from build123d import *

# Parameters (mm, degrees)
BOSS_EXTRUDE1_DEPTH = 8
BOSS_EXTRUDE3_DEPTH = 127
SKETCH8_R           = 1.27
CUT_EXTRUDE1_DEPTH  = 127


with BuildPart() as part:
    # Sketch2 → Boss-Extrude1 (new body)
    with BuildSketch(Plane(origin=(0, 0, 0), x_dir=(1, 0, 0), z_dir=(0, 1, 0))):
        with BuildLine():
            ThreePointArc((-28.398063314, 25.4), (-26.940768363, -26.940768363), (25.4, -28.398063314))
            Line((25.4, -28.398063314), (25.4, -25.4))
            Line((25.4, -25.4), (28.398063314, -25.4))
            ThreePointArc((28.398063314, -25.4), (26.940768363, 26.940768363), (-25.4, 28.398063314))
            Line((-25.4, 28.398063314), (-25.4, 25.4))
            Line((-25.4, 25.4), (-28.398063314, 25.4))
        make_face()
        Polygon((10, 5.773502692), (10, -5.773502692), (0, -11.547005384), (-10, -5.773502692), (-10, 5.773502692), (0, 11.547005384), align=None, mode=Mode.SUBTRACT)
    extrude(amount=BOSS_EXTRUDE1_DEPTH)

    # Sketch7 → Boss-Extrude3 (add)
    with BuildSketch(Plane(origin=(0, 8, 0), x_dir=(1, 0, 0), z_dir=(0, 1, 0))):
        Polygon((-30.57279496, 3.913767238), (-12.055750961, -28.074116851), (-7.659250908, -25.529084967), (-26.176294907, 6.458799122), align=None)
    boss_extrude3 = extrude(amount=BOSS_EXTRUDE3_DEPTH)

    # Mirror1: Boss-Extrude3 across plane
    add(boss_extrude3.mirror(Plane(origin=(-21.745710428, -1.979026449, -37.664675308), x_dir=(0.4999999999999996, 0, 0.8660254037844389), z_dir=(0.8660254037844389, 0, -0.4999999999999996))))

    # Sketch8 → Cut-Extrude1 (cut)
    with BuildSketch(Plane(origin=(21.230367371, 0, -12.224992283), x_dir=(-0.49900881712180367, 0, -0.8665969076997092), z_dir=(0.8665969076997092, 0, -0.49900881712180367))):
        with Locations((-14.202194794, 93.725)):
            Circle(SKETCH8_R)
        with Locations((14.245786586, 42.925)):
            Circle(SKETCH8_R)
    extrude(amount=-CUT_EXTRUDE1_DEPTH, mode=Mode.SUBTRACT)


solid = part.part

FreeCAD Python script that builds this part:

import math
import FreeCAD as App
import Part
import Sketcher
Q = App.Units.Quantity

doc = App.newDocument("Part")
body = doc.addObject("PartDesign::Body", "Body")

sketch1 = body.newObject("Sketcher::SketchObject", "Sketch")
sketch1.AttachmentSupport = (doc.getObject("XZ_Plane"), [""])
sketch1.MapMode = "FlatFace"
sketch1.addGeometry(Part.ArcOfCircle(Part.Circle(App.Vector(0, 0, 0), App.Vector(0, 0, 1), 38.1), math.radians(48), math.radians(222)), False)
sketch1.addGeometry(Part.LineSegment(App.Vector(25.4, 28.4, 0), App.Vector(25.4, 25.4, 0)), False)
sketch1.addGeometry(Part.LineSegment(App.Vector(25.4, 25.4, 0), App.Vector(28.4, 25.4, 0)), False)
sketch1.addGeometry(Part.ArcOfCircle(Part.Circle(App.Vector(0, 0, 0), App.Vector(0, 0, 1), 38.1), math.radians(-132), math.radians(42)), False)
sketch1.addGeometry(Part.LineSegment(App.Vector(-25.4, -28.4, 0), App.Vector(-25.4, -25.4, 0)), False)
sketch1.addGeometry(Part.LineSegment(App.Vector(-25.4, -25.4, 0), App.Vector(-28.4, -25.4, 0)), False)
sketch1.addGeometry(Part.LineSegment(App.Vector(0, -11.5, 0), App.Vector(10, -5.8, 0)), False)
sketch1.addGeometry(Part.LineSegment(App.Vector(10, -5.8, 0), App.Vector(10, 5.8, 0)), False)
sketch1.addGeometry(Part.LineSegment(App.Vector(10, 5.8, 0), App.Vector(0, 11.5, 0)), False)
sketch1.addGeometry(Part.LineSegment(App.Vector(0, 11.5, 0), App.Vector(-10, 5.8, 0)), False)
sketch1.addGeometry(Part.LineSegment(App.Vector(-10, 5.8, 0), App.Vector(-10, -5.8, 0)), False)
sketch1.addGeometry(Part.LineSegment(App.Vector(-10, -5.8, 0), App.Vector(0, -11.5, 0)), False)
sketch1.addConstraint(Sketcher.Constraint("Coincident", 0, 1, 1, 1))
sketch1.addConstraint(Sketcher.Constraint("Coincident", 1, 2, 2, 1))
sketch1.addConstraint(Sketcher.Constraint("Coincident", 2, 2, 3, 2))
sketch1.addConstraint(Sketcher.Constraint("Coincident", 3, 1, 4, 1))
sketch1.addConstraint(Sketcher.Constraint("Coincident", 4, 2, 5, 1))
sketch1.addConstraint(Sketcher.Constraint("Coincident", 5, 2, 0, 2))
sketch1.addConstraint(Sketcher.Constraint("Coincident", 6, 2, 7, 1))
sketch1.addConstraint(Sketcher.Constraint("Coincident", 7, 2, 8, 1))
sketch1.addConstraint(Sketcher.Constraint("Coincident", 8, 2, 9, 1))
sketch1.addConstraint(Sketcher.Constraint("Coincident", 9, 2, 10, 1))
sketch1.addConstraint(Sketcher.Constraint("Coincident", 10, 2, 11, 1))
sketch1.addConstraint(Sketcher.Constraint("Coincident", 11, 2, 6, 1))
sketch1.addConstraint(Sketcher.Constraint("Vertical", 1))
sketch1.addConstraint(Sketcher.Constraint("Horizontal", 2))
sketch1.addConstraint(Sketcher.Constraint("Vertical", 4))
sketch1.addConstraint(Sketcher.Constraint("Horizontal", 5))
sketch1.addConstraint(Sketcher.Constraint("Vertical", 7))
sketch1.addConstraint(Sketcher.Constraint("Vertical", 10))
sketch1.addConstraint(Sketcher.Constraint("Coincident", 0, 3, -1, 1))
sketch1.addConstraint(Sketcher.Constraint("Coincident", 3, 3, -1, 1))
sketch1.addConstraint(Sketcher.Constraint("Equal", 0, 3))
sketch1.addConstraint(Sketcher.Constraint("Symmetric", 1, 2, 4, 2, -1, 1))
sketch1.addConstraint(Sketcher.Constraint("Symmetric", 6, 2, 9, 2, -1, 1))
sketch1.addConstraint(Sketcher.Constraint("Symmetric", 8, 2, 11, 2, -1, 1))
sketch1.addConstraint(Sketcher.Constraint("PointOnObject", 8, 2, -2))
sketch1.addConstraint(Sketcher.Constraint("Parallel", 8, 11))
sketch1.addConstraint(Sketcher.Constraint("Horizontal", 7, 2, 9, 2))
sketch1.addConstraint(Sketcher.Constraint("Equal", 5, 1))
sketch1.addConstraint(Sketcher.Constraint("Radius", 0, Q("1.5 in")))
sketch1.addConstraint(Sketcher.Constraint("DistanceX", -1, 1, 0, 1, Q("1 in")))
sketch1.addConstraint(Sketcher.Constraint("Angle", 6, Q("30 deg")))
sketch1.addConstraint(Sketcher.Constraint("DistanceX", -1, 1, 6, 2, 10.0))
sketch1.addConstraint(Sketcher.Constraint("DistanceY", 7, 1, 7, 2, 11.547005))
pad1 = body.newObject("PartDesign::Pad", "Pad")
pad1.Profile = sketch1
pad1.Length = 8
pad1.Reversed = True

sketch2 = body.newObject("Sketcher::SketchObject", "Sketch001")
sketch2.AttachmentSupport = (doc.getObject("XZ_Plane"), [""])
sketch2.MapMode = "FlatFace"
sketch2.AttachmentOffset = App.Placement(App.Vector(0, 0, -8), App.Rotation())
sketch2.addGeometry(Part.LineSegment(App.Vector(-31, -4, 0), App.Vector(-12, 28, 0)), False)
sketch2.addGeometry(Part.LineSegment(App.Vector(-12, 28, 0), App.Vector(-8, 26, 0)), False)
sketch2.addGeometry(Part.LineSegment(App.Vector(-8, 26, 0), App.Vector(-26, -6, 0)), False)
sketch2.addGeometry(Part.LineSegment(App.Vector(-26, -6, 0), App.Vector(-31, -4, 0)), False)
sketch2.addConstraint(Sketcher.Constraint("Coincident", 0, 2, 1, 1))
sketch2.addConstraint(Sketcher.Constraint("Coincident", 1, 2, 2, 1))
sketch2.addConstraint(Sketcher.Constraint("Coincident", 2, 2, 3, 1))
sketch2.addConstraint(Sketcher.Constraint("Coincident", 3, 2, 0, 1))
sketch2.addConstraint(Sketcher.Constraint("Perpendicular", 0, 1))
sketch2.addConstraint(Sketcher.Constraint("Perpendicular", 1, 2))
sketch2.addConstraint(Sketcher.Constraint("Perpendicular", 2, 3))
sketch2.addConstraint(Sketcher.Constraint("Distance", 1, Q("0.2 in")))
sketch2.addConstraint(Sketcher.Constraint("DistanceY", 2, 2, -1, 1, 6.458799))
sketch2.addConstraint(Sketcher.Constraint("DistanceX", 0, 2, 1, 2, 4.3965))
sketch2.addConstraint(Sketcher.Constraint("DistanceX", 0, 2, -1, 1, 12.055751))
sketch2.addConstraint(Sketcher.Constraint("Distance", 0, 36.960866))
pad2 = body.newObject("PartDesign::Pad", "Pad001")
pad2.Profile = sketch2
pad2.Length = Q("5 in")
pad2.Reversed = True
doc.recompute()

datumplane = body.newObject("PartDesign::Plane", "DatumPlane")
datumplane.Placement = App.Placement(App.Vector(0, 0, 0), App.Rotation(App.Vector(0.5, 0, 0.866025404), App.Vector(0, -1, 0), App.Vector(0.866025404, 0, -0.5), "ZXY"))
mirrored = body.newObject("PartDesign::Mirrored", "Mirrored")
mirrored.Originals = [pad2]
mirrored.MirrorPlane = (datumplane, [""])
body.Tip = mirrored

sketch3 = body.newObject("Sketcher::SketchObject", "Sketch002")
sketch3.Placement = App.Placement(App.Vector(21.230367, 0, -12.224992), App.Rotation(App.Vector(-0.499008817, 0, -0.866596908), App.Vector(0, 1, 0), App.Vector(0.866596908, 0, -0.499008817), "ZXY"))
sketch3.addGeometry(Part.Circle(App.Vector(-14.2, 93.7, 0), App.Vector(0, 0, 1), 1.3), False)
sketch3.addGeometry(Part.Circle(App.Vector(14.2, 42.9, 0), App.Vector(0, 0, 1), 1.3), False)
sketch3.addConstraint(Sketcher.Constraint("Equal", 0, 1))
sketch3.addConstraint(Sketcher.Constraint("Diameter", 0, Q("0.1 in")))
sketch3.addConstraint(Sketcher.Constraint("DistanceY", 1, 3, 0, 3, Q("2 in")))
sketch3.addConstraint(Sketcher.Constraint("DistanceY", -1, 1, 0, 3, 93.725))
sketch3.addConstraint(Sketcher.Constraint("DistanceX", 0, 3, 1, 3, 28.447981))
sketch3.addConstraint(Sketcher.Constraint("DistanceX", 0, 3, -1, 1, 14.202195))
pocket1 = body.newObject("PartDesign::Pocket", "Pocket")
pocket1.Profile = sketch3
pocket1.Length = Q("5 in")

doc.recompute()
